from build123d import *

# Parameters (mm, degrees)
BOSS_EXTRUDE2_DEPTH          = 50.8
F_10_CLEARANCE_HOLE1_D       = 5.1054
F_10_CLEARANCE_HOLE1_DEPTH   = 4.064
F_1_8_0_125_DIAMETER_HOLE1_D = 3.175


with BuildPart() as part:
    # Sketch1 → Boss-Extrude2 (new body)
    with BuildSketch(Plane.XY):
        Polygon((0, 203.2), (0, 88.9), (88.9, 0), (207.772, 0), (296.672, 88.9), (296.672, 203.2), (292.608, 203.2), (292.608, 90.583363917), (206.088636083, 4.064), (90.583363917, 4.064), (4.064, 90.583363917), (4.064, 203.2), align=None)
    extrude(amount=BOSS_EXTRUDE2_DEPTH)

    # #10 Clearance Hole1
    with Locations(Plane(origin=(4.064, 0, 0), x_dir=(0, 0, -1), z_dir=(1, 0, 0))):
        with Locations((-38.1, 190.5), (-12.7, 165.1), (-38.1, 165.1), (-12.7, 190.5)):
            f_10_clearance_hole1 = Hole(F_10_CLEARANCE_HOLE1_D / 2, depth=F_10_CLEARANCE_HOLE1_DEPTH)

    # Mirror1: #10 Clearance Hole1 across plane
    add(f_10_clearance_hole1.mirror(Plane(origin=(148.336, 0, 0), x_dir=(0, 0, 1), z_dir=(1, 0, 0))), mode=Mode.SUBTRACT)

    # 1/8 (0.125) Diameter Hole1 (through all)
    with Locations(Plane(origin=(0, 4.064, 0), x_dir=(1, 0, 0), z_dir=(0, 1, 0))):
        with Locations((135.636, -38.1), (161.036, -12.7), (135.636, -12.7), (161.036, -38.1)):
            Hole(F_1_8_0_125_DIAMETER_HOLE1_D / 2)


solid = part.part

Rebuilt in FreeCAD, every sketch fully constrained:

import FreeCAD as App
import Part
import Sketcher

V = App.Vector
Q = App.Units.Quantity


def add_polygon(sketch, points):
    """Adds a closed chain of lines whose ends are joined by coincident constraints."""
    first, n = sketch.GeometryCount, len(points)
    for a, b in zip(points, points[1:] + points[:1]):
        sketch.addGeometry(Part.LineSegment(App.Vector(*a, 0), App.Vector(*b, 0)), False)
    for i in range(n):
        sketch.addConstraint(Sketcher.Constraint("Coincident", first + i, 2, first + (i + 1) % n, 1))

doc = App.newDocument("Part")
body = doc.addObject("PartDesign::Body", "Body")

# Sketch on XY plane
sketch1 = body.newObject("Sketcher::SketchObject", "Sketch")
sketch1.AttachmentSupport = (doc.getObject("XY_Plane"), [""])
sketch1.MapMode = "FlatFace"
add_polygon(sketch1, [(0, 203.2), (0, 88.9), (88.9, 0), (207.8, 0), (296.7, 88.9), (296.7, 203.2), (292.6, 203.2), (292.6, 90.6), (206.1, 4.1), (90.6, 4.1), (4.1, 90.6), (4.1, 203.2)])  # lines 0-11
sketch1.addConstraint(Sketcher.Constraint("Vertical", 0))
sketch1.addConstraint(Sketcher.Constraint("Horizontal", 2))
sketch1.addConstraint(Sketcher.Constraint("Vertical", 4))
sketch1.addConstraint(Sketcher.Constraint("Horizontal", 5))
sketch1.addConstraint(Sketcher.Constraint("Vertical", 6))
sketch1.addConstraint(Sketcher.Constraint("Horizontal", 8))
sketch1.addConstraint(Sketcher.Constraint("Vertical", 10))
sketch1.addConstraint(Sketcher.Constraint("Horizontal", 11))
sketch1.addConstraint(Sketcher.Constraint("PointOnObject", 0, 2, -2))
sketch1.addConstraint(Sketcher.Constraint("PointOnObject", 1, 2, -1))
sketch1.addConstraint(Sketcher.Constraint("Perpendicular", 1, 3))
sketch1.addConstraint(Sketcher.Constraint("Parallel", 3, 7))
sketch1.addConstraint(Sketcher.Constraint("Perpendicular", 7, 9))
sketch1.addConstraint(Sketcher.Constraint("Horizontal", 0, 2, 3, 2))
sketch1.addConstraint(Sketcher.Constraint("Horizontal", 6, 2, 9, 2))
sketch1.addConstraint(Sketcher.Constraint("Horizontal", 5, 2, 10, 2))
sketch1.addConstraint(Sketcher.Constraint("Equal", 5, 11))
sketch1.addConstraint(Sketcher.Constraint("Equal", 1, 3))
sketch1.addConstraint(Sketcher.Constraint("DistanceY", 0, 2, 0, 1, Q("4.5 in")))
sketch1.addConstraint(Sketcher.Constraint("DistanceY", -1, 1, 4, 2, Q("8 in")))
sketch1.addConstraint(Sketcher.Constraint("DistanceX", 2, 1, 2, 2, Q("4.68 in")))
sketch1.addConstraint(Sketcher.Constraint("DistanceX", 5, 2, 5, 1, Q("0.16 in")))
sketch1.addConstraint(Sketcher.Constraint("DistanceY", -1, 1, 7, 2, Q("0.16 in")))
sketch1.addConstraint(Sketcher.Constraint("DistanceX", 8, 2, 8, 1, Q("115.505272 mm")))
pad1 = body.newObject("PartDesign::Pad", "Pad")
pad1.Profile = sketch1
pad1.Length = Q("2 in")

# Sketch on YZ plane
sketch2 = body.newObject("Sketcher::SketchObject", "Sketch001")
sketch2.AttachmentSupport = (doc.getObject("YZ_Plane"), [""])
sketch2.MapMode = "FlatFace"
sketch2.AttachmentOffset = App.Placement(V(0, 0, 0.16 * 25.4), App.Rotation())
sketch2.addGeometry(Part.Circle(V(190.5, 38.1, 0), V(0, 0, 1), 2.6), False)
sketch2.addGeometry(Part.Circle(V(165.1, 12.7, 0), V(0, 0, 1), 2.6), False)
sketch2.addGeometry(Part.Circle(V(165.1, 38.1, 0), V(0, 0, 1), 2.6), False)
sketch2.addGeometry(Part.Circle(V(190.5, 12.7, 0), V(0, 0, 1), 2.6), False)
sketch2.addConstraint(Sketcher.Constraint("Equal", 0, 1))
sketch2.addConstraint(Sketcher.Constraint("Equal", 1, 2))
sketch2.addConstraint(Sketcher.Constraint("Equal", 2, 3))
sketch2.addConstraint(Sketcher.Constraint("Horizontal", 0, 3, 2, 3))
sketch2.addConstraint(Sketcher.Constraint("Horizontal", 1, 3, 3, 3))
sketch2.addConstraint(Sketcher.Constraint("Vertical", 1, 3, 2, 3))
sketch2.addConstraint(Sketcher.Constraint("Vertical", 0, 3, 3, 3))
sketch2.addConstraint(Sketcher.Constraint("Diameter", 0, Q("0.201 in")))
sketch2.addConstraint(Sketcher.Constraint("DistanceX", 1, 3, 0, 3, Q("1 in")))
sketch2.addConstraint(Sketcher.Constraint("DistanceY", 1, 3, 0, 3, Q("1 in")))
sketch2.addConstraint(Sketcher.Constraint("DistanceX", -1, 1, 0, 3, Q("7.5 in")))
sketch2.addConstraint(Sketcher.Constraint("DistanceY", -1, 1, 0, 3, Q("1.5 in")))
doc.recompute()
hole = body.newObject("PartDesign::Hole", "Hole")
hole.Profile = sketch2
hole.ThreadType = "None"
hole.Diameter = Q("0.201 in")
hole.DepthType = "Dimension"
hole.Depth = Q("0.16 in")
hole.DrillPoint = "Flat"
doc.recompute()

datumplane = body.newObject("PartDesign::Plane", "DatumPlane")
datumplane.AttachmentSupport = (doc.getObject("YZ_Plane"), [""])
datumplane.MapMode = "FlatFace"
datumplane.AttachmentOffset = App.Placement(V(0, 0, 5.84 * 25.4), App.Rotation())
mirrored = body.newObject("PartDesign::Mirrored", "Mirrored")
mirrored.Originals = [hole]
mirrored.MirrorPlane = (datumplane, [""])
body.Tip = mirrored

# Sketch on XZ plane
sketch3 = body.newObject("Sketcher::SketchObject", "Sketch002")
sketch3.AttachmentSupport = (doc.getObject("XZ_Plane"), [""])
sketch3.MapMode = "FlatFace"
sketch3.AttachmentOffset = App.Placement(V(0, 0, -0.16 * 25.4), App.Rotation())
sketch3.addGeometry(Part.Circle(V(135.6, 38.1, 0), V(0, 0, 1), 1.6), False)
sketch3.addGeometry(Part.Circle(V(161, 12.7, 0), V(0, 0, 1), 1.6), False)
sketch3.addGeometry(Part.Circle(V(135.6, 12.7, 0), V(0, 0, 1), 1.6), False)
sketch3.addGeometry(Part.Circle(V(161, 38.1, 0), V(0, 0, 1), 1.6), False)
sketch3.addConstraint(Sketcher.Constraint("Equal", 0, 1))
sketch3.addConstraint(Sketcher.Constraint("Equal", 1, 2))
sketch3.addConstraint(Sketcher.Constraint("Equal", 2, 3))
sketch3.addConstraint(Sketcher.Constraint("Horizontal", 1, 3, 2, 3))
sketch3.addConstraint(Sketcher.Constraint("Horizontal", 0, 3, 3, 3))
sketch3.addConstraint(Sketcher.Constraint("Vertical", 0, 3, 2, 3))
sketch3.addConstraint(Sketcher.Constraint("Vertical", 1, 3, 3, 3))
sketch3.addConstraint(Sketcher.Constraint("Diameter", 0, Q("0.125 in")))
sketch3.addConstraint(Sketcher.Constraint("DistanceX", 0, 3, 1, 3, Q("1 in")))
sketch3.addConstraint(Sketcher.Constraint("DistanceY", 1, 3, 0, 3, Q("1 in")))
sketch3.addConstraint(Sketcher.Constraint("DistanceY", -1, 1, 0, 3, Q("1.5 in")))
sketch3.addConstraint(Sketcher.Constraint("DistanceX", -1, 1, 0, 3, Q("5.34 in")))
doc.recompute()
hole2 = body.newObject("PartDesign::Hole", "Hole001")
hole2.Profile = sketch3
hole2.ThreadType = "None"
hole2.Diameter = Q("0.125 in")
hole2.DepthType = "ThroughAll"
hole2.Reversed = True

doc.recompute()
